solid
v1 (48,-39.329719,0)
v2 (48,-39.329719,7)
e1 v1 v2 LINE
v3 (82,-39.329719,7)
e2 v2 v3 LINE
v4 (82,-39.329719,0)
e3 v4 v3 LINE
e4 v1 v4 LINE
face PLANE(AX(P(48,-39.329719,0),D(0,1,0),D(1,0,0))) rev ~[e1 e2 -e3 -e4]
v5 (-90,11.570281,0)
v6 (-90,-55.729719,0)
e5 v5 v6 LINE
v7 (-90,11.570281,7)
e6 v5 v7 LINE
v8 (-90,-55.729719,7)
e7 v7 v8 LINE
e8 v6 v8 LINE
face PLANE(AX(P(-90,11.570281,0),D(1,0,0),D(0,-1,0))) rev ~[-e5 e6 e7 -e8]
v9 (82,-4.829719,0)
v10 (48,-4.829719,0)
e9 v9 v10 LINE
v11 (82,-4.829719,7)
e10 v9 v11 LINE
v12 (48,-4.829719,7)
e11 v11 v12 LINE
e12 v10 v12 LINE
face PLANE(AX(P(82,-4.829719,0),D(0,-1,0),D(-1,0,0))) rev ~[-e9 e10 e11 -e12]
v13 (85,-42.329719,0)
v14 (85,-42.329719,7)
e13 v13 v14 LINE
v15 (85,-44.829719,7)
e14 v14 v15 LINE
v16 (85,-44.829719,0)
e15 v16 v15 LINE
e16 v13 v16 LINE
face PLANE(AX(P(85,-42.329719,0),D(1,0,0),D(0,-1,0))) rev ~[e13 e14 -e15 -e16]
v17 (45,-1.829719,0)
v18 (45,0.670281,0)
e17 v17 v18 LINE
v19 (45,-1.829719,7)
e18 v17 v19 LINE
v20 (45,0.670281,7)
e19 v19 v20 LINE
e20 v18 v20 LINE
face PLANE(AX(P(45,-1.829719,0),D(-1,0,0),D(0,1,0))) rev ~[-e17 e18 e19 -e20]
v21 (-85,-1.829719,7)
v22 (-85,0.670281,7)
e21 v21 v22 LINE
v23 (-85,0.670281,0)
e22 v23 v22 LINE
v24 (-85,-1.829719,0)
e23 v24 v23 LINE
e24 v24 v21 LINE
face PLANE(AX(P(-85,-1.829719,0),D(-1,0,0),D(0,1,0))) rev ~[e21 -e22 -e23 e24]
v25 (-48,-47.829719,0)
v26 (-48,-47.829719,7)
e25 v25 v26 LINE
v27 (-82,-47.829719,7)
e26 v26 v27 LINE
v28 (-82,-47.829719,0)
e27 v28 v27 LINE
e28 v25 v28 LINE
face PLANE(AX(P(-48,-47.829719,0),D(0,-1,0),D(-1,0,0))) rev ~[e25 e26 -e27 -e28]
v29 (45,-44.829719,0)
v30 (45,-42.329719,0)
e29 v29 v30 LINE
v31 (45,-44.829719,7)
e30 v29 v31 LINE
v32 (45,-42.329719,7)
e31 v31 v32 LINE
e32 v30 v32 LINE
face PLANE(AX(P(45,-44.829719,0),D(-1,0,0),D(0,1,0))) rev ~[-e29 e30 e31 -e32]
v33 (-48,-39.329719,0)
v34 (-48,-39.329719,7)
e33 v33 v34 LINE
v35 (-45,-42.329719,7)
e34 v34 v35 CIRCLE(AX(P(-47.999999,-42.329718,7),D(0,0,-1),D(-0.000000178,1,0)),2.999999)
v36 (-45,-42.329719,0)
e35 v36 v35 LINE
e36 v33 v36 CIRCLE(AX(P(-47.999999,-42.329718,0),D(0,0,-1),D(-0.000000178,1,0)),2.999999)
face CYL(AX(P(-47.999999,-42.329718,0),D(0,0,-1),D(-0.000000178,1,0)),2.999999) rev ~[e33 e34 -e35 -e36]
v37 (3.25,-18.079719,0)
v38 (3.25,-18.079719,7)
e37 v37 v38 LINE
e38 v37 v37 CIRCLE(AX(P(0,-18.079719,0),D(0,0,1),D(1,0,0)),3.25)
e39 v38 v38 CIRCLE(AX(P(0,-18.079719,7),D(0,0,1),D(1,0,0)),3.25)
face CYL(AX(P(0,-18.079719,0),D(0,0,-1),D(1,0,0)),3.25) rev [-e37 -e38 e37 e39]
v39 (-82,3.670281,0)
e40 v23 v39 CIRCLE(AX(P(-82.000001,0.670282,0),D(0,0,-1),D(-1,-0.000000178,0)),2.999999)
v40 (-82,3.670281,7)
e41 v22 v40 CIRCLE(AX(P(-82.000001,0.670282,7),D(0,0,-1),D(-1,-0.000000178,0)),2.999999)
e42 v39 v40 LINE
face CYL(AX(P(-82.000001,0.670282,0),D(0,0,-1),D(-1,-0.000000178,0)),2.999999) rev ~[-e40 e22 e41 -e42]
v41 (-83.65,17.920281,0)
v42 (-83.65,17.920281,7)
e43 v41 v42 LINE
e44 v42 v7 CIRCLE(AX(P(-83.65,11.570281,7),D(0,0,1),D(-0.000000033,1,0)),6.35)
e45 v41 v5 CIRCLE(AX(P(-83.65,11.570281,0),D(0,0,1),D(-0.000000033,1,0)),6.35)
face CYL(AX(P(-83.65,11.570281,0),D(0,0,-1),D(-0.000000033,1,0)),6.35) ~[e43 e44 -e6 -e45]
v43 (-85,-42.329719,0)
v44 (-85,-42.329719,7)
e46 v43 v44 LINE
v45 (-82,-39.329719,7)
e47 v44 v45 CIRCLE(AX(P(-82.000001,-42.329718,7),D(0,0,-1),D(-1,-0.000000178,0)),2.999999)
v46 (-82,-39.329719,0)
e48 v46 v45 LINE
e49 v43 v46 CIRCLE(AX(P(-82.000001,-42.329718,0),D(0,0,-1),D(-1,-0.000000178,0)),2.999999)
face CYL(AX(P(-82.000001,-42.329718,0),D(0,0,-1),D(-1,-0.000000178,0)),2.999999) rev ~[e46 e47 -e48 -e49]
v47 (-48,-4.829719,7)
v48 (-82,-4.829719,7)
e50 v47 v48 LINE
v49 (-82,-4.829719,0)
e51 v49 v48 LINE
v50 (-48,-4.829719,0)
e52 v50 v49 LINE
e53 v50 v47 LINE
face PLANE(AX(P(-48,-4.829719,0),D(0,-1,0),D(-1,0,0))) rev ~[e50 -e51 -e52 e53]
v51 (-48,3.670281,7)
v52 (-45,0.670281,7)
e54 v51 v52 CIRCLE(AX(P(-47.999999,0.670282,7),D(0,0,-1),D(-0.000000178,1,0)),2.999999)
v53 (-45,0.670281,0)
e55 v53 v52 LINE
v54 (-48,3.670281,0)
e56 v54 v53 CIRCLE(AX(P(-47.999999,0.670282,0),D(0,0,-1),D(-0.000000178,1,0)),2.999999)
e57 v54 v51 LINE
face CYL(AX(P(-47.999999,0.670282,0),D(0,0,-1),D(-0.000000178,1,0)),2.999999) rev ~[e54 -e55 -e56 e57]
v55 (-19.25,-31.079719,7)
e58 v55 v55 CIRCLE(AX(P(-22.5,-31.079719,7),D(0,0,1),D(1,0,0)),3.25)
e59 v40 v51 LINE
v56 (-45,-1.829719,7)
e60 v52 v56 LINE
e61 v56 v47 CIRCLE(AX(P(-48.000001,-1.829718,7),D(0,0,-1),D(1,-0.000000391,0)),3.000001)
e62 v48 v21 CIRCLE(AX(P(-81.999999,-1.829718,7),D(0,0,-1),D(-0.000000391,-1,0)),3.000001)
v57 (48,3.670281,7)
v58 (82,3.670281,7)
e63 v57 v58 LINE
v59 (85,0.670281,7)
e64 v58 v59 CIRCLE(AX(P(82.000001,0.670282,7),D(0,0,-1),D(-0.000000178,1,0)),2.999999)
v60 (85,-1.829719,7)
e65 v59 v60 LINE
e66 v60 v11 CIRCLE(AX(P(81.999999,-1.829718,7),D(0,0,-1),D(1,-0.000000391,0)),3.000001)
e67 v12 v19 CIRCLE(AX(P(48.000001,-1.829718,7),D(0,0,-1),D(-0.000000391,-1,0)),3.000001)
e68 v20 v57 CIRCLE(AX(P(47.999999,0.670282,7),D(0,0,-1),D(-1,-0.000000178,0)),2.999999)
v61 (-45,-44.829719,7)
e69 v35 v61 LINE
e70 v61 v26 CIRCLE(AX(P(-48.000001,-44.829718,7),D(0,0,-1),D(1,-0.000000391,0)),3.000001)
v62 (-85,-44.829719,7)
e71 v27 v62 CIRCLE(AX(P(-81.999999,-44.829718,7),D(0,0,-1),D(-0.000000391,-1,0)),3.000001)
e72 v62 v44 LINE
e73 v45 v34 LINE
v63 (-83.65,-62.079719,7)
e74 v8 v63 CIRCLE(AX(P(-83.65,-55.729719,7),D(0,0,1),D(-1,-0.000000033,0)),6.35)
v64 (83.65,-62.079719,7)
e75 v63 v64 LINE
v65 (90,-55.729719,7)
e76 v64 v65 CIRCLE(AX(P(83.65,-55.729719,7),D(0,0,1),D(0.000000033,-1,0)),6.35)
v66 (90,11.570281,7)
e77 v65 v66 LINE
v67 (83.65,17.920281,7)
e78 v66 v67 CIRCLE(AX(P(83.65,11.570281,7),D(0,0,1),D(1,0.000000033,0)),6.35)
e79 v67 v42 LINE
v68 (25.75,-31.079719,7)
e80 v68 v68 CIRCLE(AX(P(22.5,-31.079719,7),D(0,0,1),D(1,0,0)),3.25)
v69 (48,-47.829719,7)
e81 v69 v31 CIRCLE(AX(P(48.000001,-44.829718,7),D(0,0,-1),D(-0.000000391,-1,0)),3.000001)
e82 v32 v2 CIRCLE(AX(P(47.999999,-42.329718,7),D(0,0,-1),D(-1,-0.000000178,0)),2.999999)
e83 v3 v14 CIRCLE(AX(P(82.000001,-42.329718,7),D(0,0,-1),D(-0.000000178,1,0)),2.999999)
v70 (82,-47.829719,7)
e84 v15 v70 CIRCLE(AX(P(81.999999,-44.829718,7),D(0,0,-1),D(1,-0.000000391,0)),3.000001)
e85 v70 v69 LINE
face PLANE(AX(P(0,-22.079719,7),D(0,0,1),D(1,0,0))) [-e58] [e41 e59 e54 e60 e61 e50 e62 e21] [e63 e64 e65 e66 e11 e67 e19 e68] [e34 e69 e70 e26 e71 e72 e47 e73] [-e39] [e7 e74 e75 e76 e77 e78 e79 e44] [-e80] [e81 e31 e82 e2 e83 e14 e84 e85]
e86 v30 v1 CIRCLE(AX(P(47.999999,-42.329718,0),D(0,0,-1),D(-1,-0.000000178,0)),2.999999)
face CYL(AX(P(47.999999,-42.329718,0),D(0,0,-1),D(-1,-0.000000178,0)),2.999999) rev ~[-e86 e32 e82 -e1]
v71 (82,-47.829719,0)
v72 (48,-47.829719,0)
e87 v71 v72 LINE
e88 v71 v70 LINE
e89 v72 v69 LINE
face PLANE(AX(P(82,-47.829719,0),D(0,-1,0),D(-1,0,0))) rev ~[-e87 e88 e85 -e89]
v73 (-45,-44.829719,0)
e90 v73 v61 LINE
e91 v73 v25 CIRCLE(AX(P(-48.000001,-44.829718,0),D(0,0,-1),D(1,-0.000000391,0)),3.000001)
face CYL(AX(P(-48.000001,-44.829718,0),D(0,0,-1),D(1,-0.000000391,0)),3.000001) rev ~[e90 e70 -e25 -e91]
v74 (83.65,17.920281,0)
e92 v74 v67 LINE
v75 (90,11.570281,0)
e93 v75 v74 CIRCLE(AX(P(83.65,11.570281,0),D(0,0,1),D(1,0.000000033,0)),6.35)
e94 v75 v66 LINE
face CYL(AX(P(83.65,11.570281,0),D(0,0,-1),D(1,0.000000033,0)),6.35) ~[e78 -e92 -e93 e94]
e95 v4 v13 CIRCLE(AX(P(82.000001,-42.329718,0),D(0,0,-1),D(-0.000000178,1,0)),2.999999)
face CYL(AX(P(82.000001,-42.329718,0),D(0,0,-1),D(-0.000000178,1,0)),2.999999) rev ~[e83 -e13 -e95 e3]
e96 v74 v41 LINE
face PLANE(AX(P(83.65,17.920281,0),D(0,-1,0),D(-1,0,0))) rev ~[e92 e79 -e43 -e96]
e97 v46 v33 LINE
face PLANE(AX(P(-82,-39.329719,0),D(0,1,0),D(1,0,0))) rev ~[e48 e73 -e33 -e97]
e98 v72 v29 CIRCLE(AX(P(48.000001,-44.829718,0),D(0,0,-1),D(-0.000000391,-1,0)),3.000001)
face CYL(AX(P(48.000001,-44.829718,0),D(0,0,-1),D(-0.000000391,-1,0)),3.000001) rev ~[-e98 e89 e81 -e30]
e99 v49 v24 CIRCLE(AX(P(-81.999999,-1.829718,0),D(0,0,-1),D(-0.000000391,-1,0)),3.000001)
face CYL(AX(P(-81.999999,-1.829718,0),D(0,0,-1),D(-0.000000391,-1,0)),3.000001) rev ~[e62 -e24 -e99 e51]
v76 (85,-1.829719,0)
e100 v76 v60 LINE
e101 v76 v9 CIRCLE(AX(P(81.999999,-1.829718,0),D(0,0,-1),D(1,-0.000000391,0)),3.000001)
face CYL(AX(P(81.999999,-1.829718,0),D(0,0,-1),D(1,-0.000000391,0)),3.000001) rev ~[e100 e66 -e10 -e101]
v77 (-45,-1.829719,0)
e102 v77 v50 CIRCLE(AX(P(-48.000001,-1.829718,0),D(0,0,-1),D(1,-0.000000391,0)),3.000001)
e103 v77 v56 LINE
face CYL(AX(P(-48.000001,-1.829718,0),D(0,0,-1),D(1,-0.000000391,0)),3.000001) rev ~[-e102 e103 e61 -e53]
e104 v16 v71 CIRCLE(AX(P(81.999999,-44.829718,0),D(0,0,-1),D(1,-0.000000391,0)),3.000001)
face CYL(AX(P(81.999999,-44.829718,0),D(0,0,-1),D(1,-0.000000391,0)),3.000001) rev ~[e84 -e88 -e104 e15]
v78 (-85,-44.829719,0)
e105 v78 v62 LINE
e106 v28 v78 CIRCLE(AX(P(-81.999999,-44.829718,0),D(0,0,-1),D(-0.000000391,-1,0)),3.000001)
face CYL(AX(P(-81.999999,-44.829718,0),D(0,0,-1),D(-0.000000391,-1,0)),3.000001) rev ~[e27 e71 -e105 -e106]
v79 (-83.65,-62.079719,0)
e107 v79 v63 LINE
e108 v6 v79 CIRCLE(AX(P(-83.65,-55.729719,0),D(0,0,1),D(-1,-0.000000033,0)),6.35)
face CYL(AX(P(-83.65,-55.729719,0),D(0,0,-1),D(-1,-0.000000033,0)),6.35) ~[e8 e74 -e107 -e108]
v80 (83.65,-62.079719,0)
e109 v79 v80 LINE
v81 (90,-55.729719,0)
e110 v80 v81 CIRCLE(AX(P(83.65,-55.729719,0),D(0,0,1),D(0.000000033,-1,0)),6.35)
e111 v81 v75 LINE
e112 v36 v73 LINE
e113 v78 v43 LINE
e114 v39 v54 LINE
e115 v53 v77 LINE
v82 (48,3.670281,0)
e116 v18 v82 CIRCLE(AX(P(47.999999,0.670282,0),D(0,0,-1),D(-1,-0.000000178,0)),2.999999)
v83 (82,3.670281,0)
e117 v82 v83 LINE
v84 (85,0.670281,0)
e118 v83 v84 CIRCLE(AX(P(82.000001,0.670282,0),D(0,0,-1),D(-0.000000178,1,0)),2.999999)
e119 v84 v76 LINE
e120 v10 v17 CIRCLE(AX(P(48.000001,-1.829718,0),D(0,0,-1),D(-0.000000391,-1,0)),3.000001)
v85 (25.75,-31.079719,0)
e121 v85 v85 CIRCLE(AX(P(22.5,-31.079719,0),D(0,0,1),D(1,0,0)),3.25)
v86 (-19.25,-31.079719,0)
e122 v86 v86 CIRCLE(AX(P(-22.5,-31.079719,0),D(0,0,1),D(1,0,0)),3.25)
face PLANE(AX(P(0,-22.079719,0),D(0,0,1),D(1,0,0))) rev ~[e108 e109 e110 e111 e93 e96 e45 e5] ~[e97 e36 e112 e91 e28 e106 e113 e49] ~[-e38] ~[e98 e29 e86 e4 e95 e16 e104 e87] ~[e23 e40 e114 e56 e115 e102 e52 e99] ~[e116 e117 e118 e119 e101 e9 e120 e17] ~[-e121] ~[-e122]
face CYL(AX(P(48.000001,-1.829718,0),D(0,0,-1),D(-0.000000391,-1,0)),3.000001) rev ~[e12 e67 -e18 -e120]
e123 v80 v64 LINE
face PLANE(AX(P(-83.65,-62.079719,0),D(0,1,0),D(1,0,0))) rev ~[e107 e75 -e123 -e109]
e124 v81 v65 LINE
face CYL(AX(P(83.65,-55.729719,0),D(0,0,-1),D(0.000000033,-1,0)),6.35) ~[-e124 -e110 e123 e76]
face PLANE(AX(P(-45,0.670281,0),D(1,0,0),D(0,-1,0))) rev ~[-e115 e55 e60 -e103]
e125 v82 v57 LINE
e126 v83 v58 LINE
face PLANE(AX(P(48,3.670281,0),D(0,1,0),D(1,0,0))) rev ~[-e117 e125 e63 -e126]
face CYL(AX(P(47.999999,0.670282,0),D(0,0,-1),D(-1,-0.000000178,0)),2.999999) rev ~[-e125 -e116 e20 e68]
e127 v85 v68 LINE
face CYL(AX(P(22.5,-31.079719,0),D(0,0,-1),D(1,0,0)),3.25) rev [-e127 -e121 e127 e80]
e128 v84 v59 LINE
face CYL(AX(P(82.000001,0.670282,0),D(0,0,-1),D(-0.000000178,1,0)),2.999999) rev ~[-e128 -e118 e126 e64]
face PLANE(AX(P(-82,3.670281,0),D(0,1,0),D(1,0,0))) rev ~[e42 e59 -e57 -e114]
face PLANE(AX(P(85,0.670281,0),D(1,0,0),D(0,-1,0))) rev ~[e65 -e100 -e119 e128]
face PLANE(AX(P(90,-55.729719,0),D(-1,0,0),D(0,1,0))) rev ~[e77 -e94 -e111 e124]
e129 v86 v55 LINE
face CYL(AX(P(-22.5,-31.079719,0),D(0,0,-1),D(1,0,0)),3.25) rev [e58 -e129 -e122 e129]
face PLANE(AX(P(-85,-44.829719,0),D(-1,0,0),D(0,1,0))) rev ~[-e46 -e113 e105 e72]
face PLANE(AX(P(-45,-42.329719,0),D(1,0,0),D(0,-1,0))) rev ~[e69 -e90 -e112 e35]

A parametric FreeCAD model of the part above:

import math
import FreeCAD as App
import Part
import Sketcher

doc = App.newDocument("Part")
body = doc.addObject("PartDesign::Body", "Body")

sketch1 = doc.addObject("Sketcher::SketchObject", "Sketch")
body.addObject(sketch1)
sketch1.AttachmentSupport = (doc.XY_Plane, [""])
sketch1.MapMode = "FlatFace"
sketch1.addGeometry([
    Part.LineSegment(App.Vector(83.7, 17.9, 0), App.Vector(-83.7, 17.9, 0)),
    Part.ArcOfCircle(Part.Circle(App.Vector(-83.6, 11.6, 0), App.Vector(0, 0, 1), 6.4), math.radians(90), math.radians(180)),
    Part.LineSegment(App.Vector(-90, 11.6, 0), App.Vector(-90, -55.7, 0)),
    Part.ArcOfCircle(Part.Circle(App.Vector(-83.6, -55.7, 0), App.Vector(0, 0, 1), 6.4), math.radians(-180), math.radians(-90)),
    Part.LineSegment(App.Vector(-83.7, -62.1, 0), App.Vector(83.7, -62.1, 0)),
    Part.ArcOfCircle(Part.Circle(App.Vector(83.6, -55.7, 0), App.Vector(0, 0, 1), 6.4), math.radians(-90), math.radians(0)),
    Part.LineSegment(App.Vector(90, -55.7, 0), App.Vector(90, 11.6, 0)),
    Part.ArcOfCircle(Part.Circle(App.Vector(83.6, 11.6, 0), App.Vector(0, 0, 1), 6.4), math.radians(0), math.radians(90)),
    Part.LineSegment(App.Vector(-85, -44.8, 0), App.Vector(-85, -42.3, 0)),
    Part.ArcOfCircle(Part.Circle(App.Vector(-82, -42.3, 0), App.Vector(0, 0, 1), 3), math.radians(90), math.radians(180)),
    Part.LineSegment(App.Vector(-82, -39.3, 0), App.Vector(-48, -39.3, 0)),
    Part.ArcOfCircle(Part.Circle(App.Vector(-48, -42.3, 0), App.Vector(0, 0, 1), 3), math.radians(0), math.radians(90)),
    Part.LineSegment(App.Vector(-45, -42.3, 0), App.Vector(-45, -44.8, 0)),
    Part.ArcOfCircle(Part.Circle(App.Vector(-48, -44.8, 0), App.Vector(0, 0, 1), 3), math.radians(-90), math.radians(0)),
    Part.LineSegment(App.Vector(-48, -47.8, 0), App.Vector(-82, -47.8, 0)),
    Part.ArcOfCircle(Part.Circle(App.Vector(-82, -44.8, 0), App.Vector(0, 0, 1), 3), math.radians(-180), math.radians(-90)),
    Part.Circle(App.Vector(-22.5, -31.1, 0), App.Vector(0, 0, 1), 3.2),
    Part.LineSegment(App.Vector(48, -39.3, 0), App.Vector(82, -39.3, 0)),
    Part.ArcOfCircle(Part.Circle(App.Vector(82, -42.3, 0), App.Vector(0, 0, 1), 3), math.radians(0), math.radians(90)),
    Part.LineSegment(App.Vector(85, -42.3, 0), App.Vector(85, -44.8, 0)),
    Part.ArcOfCircle(Part.Circle(App.Vector(82, -44.8, 0), App.Vector(0, 0, 1), 3), math.radians(-90), math.radians(0)),
    Part.LineSegment(App.Vector(82, -47.8, 0), App.Vector(48, -47.8, 0)),
    Part.ArcOfCircle(Part.Circle(App.Vector(48, -44.8, 0), App.Vector(0, 0, 1), 3), math.radians(-180), math.radians(-90)),
    Part.LineSegment(App.Vector(45, -44.8, 0), App.Vector(45, -42.3, 0)),
    Part.ArcOfCircle(Part.Circle(App.Vector(48, -42.3, 0), App.Vector(0, 0, 1), 3), math.radians(90), math.radians(180)),
    Part.Circle(App.Vector(22.5, -31.1, 0), App.Vector(0, 0, 1), 3.2),
    Part.ArcOfCircle(Part.Circle(App.Vector(-48, -1.8, 0), App.Vector(0, 0, 1), 3), math.radians(-90), math.radians(0)),
    Part.LineSegment(App.Vector(-48, -4.8, 0), App.Vector(-82, -4.8, 0)),
    Part.ArcOfCircle(Part.Circle(App.Vector(-82, -1.8, 0), App.Vector(0, 0, 1), 3), math.radians(-180), math.radians(-90)),
    Part.LineSegment(App.Vector(-85, -1.8, 0), App.Vector(-85, 0.7, 0)),
    Part.ArcOfCircle(Part.Circle(App.Vector(-82, 0.7, 0), App.Vector(0, 0, 1), 3), math.radians(90), math.radians(180)),
    Part.LineSegment(App.Vector(-82, 3.7, 0), App.Vector(-48, 3.7, 0)),
    Part.ArcOfCircle(Part.Circle(App.Vector(-48, 0.7, 0), App.Vector(0, 0, 1), 3), math.radians(0), math.radians(90)),
    Part.LineSegment(App.Vector(-45, 0.7, 0), App.Vector(-45, -1.8, 0)),
    Part.Circle(App.Vector(0, -18.1, 0), App.Vector(0, 0, 1), 3.2),
    Part.ArcOfCircle(Part.Circle(App.Vector(82, 0.7, 0), App.Vector(0, 0, 1), 3), math.radians(0), math.radians(90)),
    Part.LineSegment(App.Vector(85, 0.7, 0), App.Vector(85, -1.8, 0)),
    Part.ArcOfCircle(Part.Circle(App.Vector(82, -1.8, 0), App.Vector(0, 0, 1), 3), math.radians(-90), math.radians(0)),
    Part.LineSegment(App.Vector(82, -4.8, 0), App.Vector(48, -4.8, 0)),
    Part.ArcOfCircle(Part.Circle(App.Vector(48, -1.8, 0), App.Vector(0, 0, 1), 3), math.radians(-180), math.radians(-90)),
    Part.LineSegment(App.Vector(45, -1.8, 0), App.Vector(45, 0.7, 0)),
    Part.ArcOfCircle(Part.Circle(App.Vector(48, 0.7, 0), App.Vector(0, 0, 1), 3), math.radians(90), math.radians(180)),
    Part.LineSegment(App.Vector(48, 3.7, 0), App.Vector(82, 3.7, 0)),
], False)
sketch1.addConstraint([
    Sketcher.Constraint("Tangent", 0, 2, 1, 1),
    Sketcher.Constraint("Tangent", 1, 2, 2, 1),
    Sketcher.Constraint("Tangent", 2, 2, 3, 1),
    Sketcher.Constraint("Tangent", 3, 2, 4, 1),
    Sketcher.Constraint("Tangent", 4, 2, 5, 1),
    Sketcher.Constraint("Tangent", 5, 2, 6, 1),
    Sketcher.Constraint("Tangent", 6, 2, 7, 1),
    Sketcher.Constraint("Tangent", 7, 2, 0, 1),
    Sketcher.Constraint("Tangent", 8, 2, 9, 2),
    Sketcher.Constraint("Tangent", 9, 1, 10, 1),
    Sketcher.Constraint("Tangent", 10, 2, 11, 2),
    Sketcher.Constraint("Tangent", 11, 1, 12, 1),
    Sketcher.Constraint("Tangent", 12, 2, 13, 2),
    Sketcher.Constraint("Tangent", 13, 1, 14, 1),
    Sketcher.Constraint("Tangent", 14, 2, 15, 2),
    Sketcher.Constraint("Tangent", 15, 1, 8, 1),
    Sketcher.Constraint("Tangent", 17, 2, 18, 2),
    Sketcher.Constraint("Tangent", 18, 1, 19, 1),
    Sketcher.Constraint("Tangent", 19, 2, 20, 2),
    Sketcher.Constraint("Tangent", 20, 1, 21, 1),
    Sketcher.Constraint("Tangent", 21, 2, 22, 2),
    Sketcher.Constraint("Tangent", 22, 1, 23, 1),
    Sketcher.Constraint("Tangent", 23, 2, 24, 2),
    Sketcher.Constraint("Tangent", 24, 1, 17, 1),
    Sketcher.Constraint("Tangent", 26, 1, 27, 1),
    Sketcher.Constraint("Tangent", 27, 2, 28, 2),
    Sketcher.Constraint("Tangent", 28, 1, 29, 1),
    Sketcher.Constraint("Tangent", 29, 2, 30, 2),
    Sketcher.Constraint("Tangent", 30, 1, 31, 1),
    Sketcher.Constraint("Tangent", 31, 2, 32, 2),
    Sketcher.Constraint("Tangent", 32, 1, 33, 1),
    Sketcher.Constraint("Tangent", 33, 2, 26, 2),
    Sketcher.Constraint("Tangent", 35, 1, 36, 1),
    Sketcher.Constraint("Tangent", 36, 2, 37, 2),
    Sketcher.Constraint("Tangent", 37, 1, 38, 1),
    Sketcher.Constraint("Tangent", 38, 2, 39, 2),
    Sketcher.Constraint("Tangent", 39, 1, 40, 1),
    Sketcher.Constraint("Tangent", 40, 2, 41, 2),
    Sketcher.Constraint("Tangent", 41, 1, 42, 1),
    Sketcher.Constraint("Tangent", 42, 2, 35, 2),
    Sketcher.Constraint("Horizontal", 0),
    Sketcher.Constraint("Vertical", 2),
    Sketcher.Constraint("Horizontal", 4),
    Sketcher.Constraint("Vertical", 6),
    Sketcher.Constraint("Vertical", 8),
    Sketcher.Constraint("Horizontal", 10),
    Sketcher.Constraint("Vertical", 12),
    Sketcher.Constraint("Horizontal", 14),
    Sketcher.Constraint("Horizontal", 17),
    Sketcher.Constraint("Vertical", 19),
    Sketcher.Constraint("Horizontal", 21),
    Sketcher.Constraint("Vertical", 23),
    Sketcher.Constraint("Horizontal", 27),
    Sketcher.Constraint("Vertical", 29),
    Sketcher.Constraint("Horizontal", 31),
    Sketcher.Constraint("Vertical", 33),
    Sketcher.Constraint("Vertical", 36),
    Sketcher.Constraint("Horizontal", 38),
    Sketcher.Constraint("Vertical", 40),
    Sketcher.Constraint("Horizontal", 42),
    Sketcher.Constraint("Equal", 1, 3),
    Sketcher.Constraint("Equal", 3, 5),
    Sketcher.Constraint("Equal", 5, 7),
    Sketcher.Constraint("Equal", 9, 11),
    Sketcher.Constraint("Equal", 11, 13),
    Sketcher.Constraint("Equal", 13, 15),
    Sketcher.Constraint("Equal", 15, 18),
    Sketcher.Constraint("Equal", 18, 20),
    Sketcher.Constraint("Equal", 20, 22),
    Sketcher.Constraint("Equal", 22, 24),
    Sketcher.Constraint("Equal", 16, 25),
    Sketcher.Constraint("Equal", 24, 26),
    Sketcher.Constraint("Equal", 26, 28),
    Sketcher.Constraint("Equal", 28, 30),
    Sketcher.Constraint("Equal", 30, 32),
    Sketcher.Constraint("Equal", 25, 34),
    Sketcher.Constraint("Equal", 32, 35),
    Sketcher.Constraint("Equal", 35, 37),
    Sketcher.Constraint("Equal", 37, 39),
    Sketcher.Constraint("Equal", 39, 41),
    Sketcher.Constraint("Symmetric", 9, 3, 18, 3, -2),
    Sketcher.Constraint("Symmetric", 13, 3, 22, 3, -2),
    Sketcher.Constraint("Symmetric", 16, 3, 25, 3, -2),
    Sketcher.Constraint("Symmetric", 30, 3, 35, 3, -2),
    Sketcher.Constraint("Symmetric", 26, 3, 39, 3, -2),
    Sketcher.Constraint("PointOnObject", 34, 3, -2),
    Sketcher.Constraint("Vertical", 13, 3, 26, 3),
    Sketcher.Constraint("Vertical", 15, 3, 28, 3),
    Sketcher.Constraint("Equal", 23, 29),
    Sketcher.Constraint("Radius", 9, 2.999999),
    Sketcher.Constraint("Diameter", 16, 6.5),
    Sketcher.Constraint("DistanceX", 10, 1, 10, 2, 34.0),
    Sketcher.Constraint("Radius", 1, 6.35),
    Sketcher.Constraint("DistanceX", 0, 2, 0, 1, 167.3),
    Sketcher.Constraint("DistanceY", 2, 2, 2, 1, 67.3),
    Sketcher.Constraint("DistanceY", 8, 1, 8, 2, 2.5),
    Sketcher.Constraint("DistanceX", 9, 3, -1, 1, 82.000001),
    Sketcher.Constraint("DistanceX", 1, 2, -1, 1, 90.0),
    Sketcher.Constraint("DistanceX", 16, 3, -1, 1, 22.5),
    Sketcher.Constraint("DistanceY", -1, 1, 1, 3, 11.570281),
    Sketcher.Constraint("DistanceY", 9, 3, -1, 1, 42.329718),
    Sketcher.Constraint("DistanceY", 16, 3, -1, 1, 31.079719),
    Sketcher.Constraint("DistanceY", -1, 1, 30, 3, 0.670282),
    Sketcher.Constraint("DistanceY", 34, 3, -1, 1, 18.079719),
])
pad1 = doc.addObject("PartDesign::Pad", "Pad")
body.addObject(pad1)
pad1.Profile = sketch1
pad1.Length = 7

doc.recompute()
